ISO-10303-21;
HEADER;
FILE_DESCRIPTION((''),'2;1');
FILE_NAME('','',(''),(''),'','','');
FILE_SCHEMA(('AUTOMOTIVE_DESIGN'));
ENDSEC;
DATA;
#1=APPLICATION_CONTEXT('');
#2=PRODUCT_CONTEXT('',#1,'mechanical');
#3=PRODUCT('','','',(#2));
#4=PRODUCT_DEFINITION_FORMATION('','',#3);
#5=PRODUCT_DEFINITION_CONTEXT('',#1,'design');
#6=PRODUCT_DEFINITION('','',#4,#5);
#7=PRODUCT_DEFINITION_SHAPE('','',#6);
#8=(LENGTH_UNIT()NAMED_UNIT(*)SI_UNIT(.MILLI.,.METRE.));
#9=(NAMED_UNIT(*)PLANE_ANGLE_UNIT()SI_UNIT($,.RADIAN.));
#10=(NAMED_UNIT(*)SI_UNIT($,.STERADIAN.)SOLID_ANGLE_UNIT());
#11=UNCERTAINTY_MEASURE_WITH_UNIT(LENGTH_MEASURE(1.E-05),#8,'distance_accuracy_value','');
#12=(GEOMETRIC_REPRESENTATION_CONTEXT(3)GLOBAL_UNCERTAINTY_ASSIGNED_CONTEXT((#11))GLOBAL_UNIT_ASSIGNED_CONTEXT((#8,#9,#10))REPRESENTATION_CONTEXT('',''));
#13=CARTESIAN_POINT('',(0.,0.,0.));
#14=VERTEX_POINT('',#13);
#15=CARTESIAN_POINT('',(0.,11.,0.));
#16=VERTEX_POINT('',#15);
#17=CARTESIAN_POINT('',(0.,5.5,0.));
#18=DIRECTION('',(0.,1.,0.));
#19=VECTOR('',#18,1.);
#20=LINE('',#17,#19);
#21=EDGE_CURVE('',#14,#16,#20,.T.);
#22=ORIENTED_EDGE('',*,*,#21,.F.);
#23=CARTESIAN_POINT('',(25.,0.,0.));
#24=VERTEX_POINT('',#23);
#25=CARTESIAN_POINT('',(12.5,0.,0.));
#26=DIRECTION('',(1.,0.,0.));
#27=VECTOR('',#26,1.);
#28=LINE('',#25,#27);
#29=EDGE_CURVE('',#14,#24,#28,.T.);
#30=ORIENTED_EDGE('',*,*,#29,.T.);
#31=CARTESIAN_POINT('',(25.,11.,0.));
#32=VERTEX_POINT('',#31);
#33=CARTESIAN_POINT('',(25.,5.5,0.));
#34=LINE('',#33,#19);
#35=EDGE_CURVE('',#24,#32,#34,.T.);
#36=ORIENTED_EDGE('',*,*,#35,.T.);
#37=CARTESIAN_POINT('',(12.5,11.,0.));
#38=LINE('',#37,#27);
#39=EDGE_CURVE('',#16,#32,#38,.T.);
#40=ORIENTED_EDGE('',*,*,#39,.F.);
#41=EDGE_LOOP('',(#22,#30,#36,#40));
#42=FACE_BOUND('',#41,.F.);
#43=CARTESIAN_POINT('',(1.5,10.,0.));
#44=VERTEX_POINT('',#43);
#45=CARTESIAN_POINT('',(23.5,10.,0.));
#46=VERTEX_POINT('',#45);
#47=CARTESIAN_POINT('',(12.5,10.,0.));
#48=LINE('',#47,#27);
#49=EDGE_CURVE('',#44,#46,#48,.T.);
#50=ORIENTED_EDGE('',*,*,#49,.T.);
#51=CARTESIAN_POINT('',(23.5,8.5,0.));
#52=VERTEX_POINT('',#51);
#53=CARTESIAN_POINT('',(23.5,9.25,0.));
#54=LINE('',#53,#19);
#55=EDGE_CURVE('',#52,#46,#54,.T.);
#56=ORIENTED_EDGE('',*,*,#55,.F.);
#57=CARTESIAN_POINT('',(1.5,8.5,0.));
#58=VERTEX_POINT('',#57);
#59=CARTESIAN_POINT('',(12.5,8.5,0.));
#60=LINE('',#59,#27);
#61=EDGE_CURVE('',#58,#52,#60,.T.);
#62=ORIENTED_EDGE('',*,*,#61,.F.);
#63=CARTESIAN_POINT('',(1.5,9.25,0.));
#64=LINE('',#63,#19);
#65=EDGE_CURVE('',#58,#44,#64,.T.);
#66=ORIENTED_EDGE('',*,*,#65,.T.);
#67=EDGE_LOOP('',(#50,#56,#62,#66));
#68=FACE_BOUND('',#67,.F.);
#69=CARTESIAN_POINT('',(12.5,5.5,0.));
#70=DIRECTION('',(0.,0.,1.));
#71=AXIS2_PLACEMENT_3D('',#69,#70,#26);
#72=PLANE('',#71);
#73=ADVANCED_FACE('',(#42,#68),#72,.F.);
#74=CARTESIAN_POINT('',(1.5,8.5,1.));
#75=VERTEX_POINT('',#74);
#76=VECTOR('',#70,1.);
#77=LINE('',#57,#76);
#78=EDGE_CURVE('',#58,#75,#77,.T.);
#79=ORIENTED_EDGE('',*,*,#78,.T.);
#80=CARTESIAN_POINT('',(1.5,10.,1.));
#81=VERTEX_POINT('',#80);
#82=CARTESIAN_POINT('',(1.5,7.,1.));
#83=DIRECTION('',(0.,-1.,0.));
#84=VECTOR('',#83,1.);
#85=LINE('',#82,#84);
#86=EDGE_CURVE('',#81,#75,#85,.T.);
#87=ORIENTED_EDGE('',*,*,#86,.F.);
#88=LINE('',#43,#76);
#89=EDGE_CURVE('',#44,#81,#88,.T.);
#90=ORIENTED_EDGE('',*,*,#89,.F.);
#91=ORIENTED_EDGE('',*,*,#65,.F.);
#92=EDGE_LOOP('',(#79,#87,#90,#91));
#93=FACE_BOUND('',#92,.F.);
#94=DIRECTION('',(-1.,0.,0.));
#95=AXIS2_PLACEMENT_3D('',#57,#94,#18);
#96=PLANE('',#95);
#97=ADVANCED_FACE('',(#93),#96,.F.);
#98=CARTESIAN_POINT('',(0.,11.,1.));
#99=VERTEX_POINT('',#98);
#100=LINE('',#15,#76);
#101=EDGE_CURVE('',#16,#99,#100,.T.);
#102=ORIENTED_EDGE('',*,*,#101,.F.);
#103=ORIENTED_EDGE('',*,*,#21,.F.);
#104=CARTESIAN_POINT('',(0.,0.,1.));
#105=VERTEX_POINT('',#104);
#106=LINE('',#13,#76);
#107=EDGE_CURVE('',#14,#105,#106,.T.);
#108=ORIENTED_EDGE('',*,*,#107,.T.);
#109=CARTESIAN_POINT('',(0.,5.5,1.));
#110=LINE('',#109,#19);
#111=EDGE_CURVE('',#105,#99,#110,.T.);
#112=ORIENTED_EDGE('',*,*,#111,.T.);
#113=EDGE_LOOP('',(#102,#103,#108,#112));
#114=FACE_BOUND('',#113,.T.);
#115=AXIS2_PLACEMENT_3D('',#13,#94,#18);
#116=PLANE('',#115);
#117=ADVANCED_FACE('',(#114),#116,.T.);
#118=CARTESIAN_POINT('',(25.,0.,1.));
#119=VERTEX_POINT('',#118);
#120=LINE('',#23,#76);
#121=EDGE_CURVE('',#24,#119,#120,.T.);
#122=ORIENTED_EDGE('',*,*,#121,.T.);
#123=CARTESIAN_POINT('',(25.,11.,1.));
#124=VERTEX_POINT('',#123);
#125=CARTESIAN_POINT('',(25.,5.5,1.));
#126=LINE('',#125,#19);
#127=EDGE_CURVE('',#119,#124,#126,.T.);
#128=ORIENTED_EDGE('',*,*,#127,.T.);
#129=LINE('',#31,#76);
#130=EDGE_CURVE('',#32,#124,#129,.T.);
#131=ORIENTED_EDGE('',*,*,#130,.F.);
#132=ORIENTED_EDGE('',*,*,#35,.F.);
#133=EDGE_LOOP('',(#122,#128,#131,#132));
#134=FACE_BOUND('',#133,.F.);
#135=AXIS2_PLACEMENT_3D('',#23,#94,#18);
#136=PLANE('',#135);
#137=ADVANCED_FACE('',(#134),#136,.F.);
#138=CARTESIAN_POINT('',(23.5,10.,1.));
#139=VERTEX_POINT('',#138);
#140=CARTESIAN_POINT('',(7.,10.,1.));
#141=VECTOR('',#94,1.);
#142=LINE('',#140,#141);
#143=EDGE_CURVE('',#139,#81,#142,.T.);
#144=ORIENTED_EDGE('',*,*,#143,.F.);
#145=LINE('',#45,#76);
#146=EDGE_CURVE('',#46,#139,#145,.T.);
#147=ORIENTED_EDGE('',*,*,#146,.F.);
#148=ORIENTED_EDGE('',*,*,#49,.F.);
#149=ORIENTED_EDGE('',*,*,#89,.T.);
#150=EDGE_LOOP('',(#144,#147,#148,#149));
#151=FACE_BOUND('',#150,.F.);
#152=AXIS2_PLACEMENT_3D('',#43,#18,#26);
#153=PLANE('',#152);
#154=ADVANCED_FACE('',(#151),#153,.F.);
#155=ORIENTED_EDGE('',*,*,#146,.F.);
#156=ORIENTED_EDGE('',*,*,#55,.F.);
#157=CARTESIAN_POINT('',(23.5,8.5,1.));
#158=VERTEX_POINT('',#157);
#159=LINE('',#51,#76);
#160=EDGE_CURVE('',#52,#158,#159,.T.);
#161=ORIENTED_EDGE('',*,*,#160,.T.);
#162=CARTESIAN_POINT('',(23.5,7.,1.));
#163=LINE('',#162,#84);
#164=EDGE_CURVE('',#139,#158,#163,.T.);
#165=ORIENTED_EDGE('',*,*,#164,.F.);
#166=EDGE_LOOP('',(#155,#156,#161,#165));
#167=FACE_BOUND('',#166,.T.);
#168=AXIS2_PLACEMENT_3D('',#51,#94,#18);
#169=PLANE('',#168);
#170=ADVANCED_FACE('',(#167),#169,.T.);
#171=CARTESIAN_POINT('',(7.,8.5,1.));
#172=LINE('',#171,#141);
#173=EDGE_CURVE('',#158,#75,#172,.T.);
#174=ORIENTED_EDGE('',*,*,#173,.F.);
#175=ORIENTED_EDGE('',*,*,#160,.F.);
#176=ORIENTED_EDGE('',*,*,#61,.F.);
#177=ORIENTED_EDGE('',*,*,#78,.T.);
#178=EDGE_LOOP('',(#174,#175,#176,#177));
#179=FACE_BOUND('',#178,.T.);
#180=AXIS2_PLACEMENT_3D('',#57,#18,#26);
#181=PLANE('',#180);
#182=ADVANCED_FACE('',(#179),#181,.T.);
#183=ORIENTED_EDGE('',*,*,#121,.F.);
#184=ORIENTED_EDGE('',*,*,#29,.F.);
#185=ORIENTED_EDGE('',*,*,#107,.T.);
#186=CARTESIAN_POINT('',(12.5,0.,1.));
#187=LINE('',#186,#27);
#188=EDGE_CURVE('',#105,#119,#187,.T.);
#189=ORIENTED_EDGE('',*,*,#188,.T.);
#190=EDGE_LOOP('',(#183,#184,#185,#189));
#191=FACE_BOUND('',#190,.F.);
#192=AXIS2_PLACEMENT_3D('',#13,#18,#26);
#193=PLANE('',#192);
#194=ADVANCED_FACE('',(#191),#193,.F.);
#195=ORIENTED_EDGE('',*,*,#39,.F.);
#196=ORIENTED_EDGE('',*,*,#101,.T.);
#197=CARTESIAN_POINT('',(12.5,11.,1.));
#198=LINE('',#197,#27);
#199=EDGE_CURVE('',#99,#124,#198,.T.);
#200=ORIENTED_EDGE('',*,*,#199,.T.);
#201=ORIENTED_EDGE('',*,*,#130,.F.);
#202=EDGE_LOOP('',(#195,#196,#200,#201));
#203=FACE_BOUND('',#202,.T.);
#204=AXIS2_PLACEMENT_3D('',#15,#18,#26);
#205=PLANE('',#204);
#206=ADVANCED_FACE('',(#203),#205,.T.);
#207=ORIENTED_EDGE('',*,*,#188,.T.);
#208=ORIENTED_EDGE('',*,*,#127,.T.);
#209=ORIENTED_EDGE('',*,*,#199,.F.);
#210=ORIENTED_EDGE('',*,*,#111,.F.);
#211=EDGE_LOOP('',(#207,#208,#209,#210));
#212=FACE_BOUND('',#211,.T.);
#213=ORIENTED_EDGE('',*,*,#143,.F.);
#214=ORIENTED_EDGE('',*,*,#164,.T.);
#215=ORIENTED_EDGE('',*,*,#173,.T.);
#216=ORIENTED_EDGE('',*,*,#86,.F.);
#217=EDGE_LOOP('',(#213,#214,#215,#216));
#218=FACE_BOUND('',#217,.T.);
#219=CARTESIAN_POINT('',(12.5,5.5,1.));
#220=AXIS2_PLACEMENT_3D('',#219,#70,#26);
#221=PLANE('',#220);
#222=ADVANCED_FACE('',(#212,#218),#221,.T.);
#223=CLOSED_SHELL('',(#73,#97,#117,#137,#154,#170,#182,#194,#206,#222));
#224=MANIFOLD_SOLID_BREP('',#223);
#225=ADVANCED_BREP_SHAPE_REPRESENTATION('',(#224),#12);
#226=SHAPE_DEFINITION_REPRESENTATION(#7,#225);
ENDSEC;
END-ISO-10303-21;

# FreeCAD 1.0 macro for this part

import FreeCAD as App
import Part
import Sketcher

V = App.Vector
Q = App.Units.Quantity

doc = App.newDocument("Part")
body = doc.addObject("PartDesign::Body", "Body")

# Sketch on XY plane
sketch1 = doc.addObject("Sketcher::SketchObject", "Sketch")
body.addObject(sketch1)
sketch1.AttachmentSupport = (doc.XY_Plane, [""])
sketch1.MapMode = "FlatFace"
sketch1.addGeometry(Part.LineSegment(V(1.5, 10, 0), V(1.5, 8.5, 0)), False)
sketch1.addGeometry(Part.LineSegment(V(1.5, 8.5, 0), V(23.5, 8.5, 0)), False)
sketch1.addGeometry(Part.LineSegment(V(23.5, 8.5, 0), V(23.5, 10, 0)), False)
sketch1.addGeometry(Part.LineSegment(V(23.5, 10, 0), V(1.5, 10, 0)), False)
sketch1.addConstraint(Sketcher.Constraint("Coincident", 0, 2, 1, 1))
sketch1.addConstraint(Sketcher.Constraint("Coincident", 1, 2, 2, 1))
sketch1.addConstraint(Sketcher.Constraint("Coincident", 2, 2, 3, 1))
sketch1.addConstraint(Sketcher.Constraint("Coincident", 3, 2, 0, 1))
sketch1.addConstraint(Sketcher.Constraint("Vertical", 0))
sketch1.addConstraint(Sketcher.Constraint("Horizontal", 1))
sketch1.addConstraint(Sketcher.Constraint("Vertical", 2))
sketch1.addConstraint(Sketcher.Constraint("Horizontal", 3))
sketch1.addConstraint(Sketcher.Constraint("DistanceX", 1, 1, 1, 2, Q("22 mm")))
sketch1.addConstraint(Sketcher.Constraint("DistanceY", 0, 2, 0, 1, Q("1.5 mm")))
sketch1.addConstraint(Sketcher.Constraint("DistanceY", -1, 1, 2, 2, Q("10 mm")))
sketch1.addConstraint(Sketcher.Constraint("DistanceX", -1, 1, 0, 2, Q("1.5 mm")))
pad1 = doc.addObject("PartDesign::Pad", "Pad")
body.addObject(pad1)
pad1.Profile = sketch1
pad1.Length = 2
body2 = doc.addObject("PartDesign::Body", "Body001")

# Sketch on XY plane
sketch2 = doc.addObject("Sketcher::SketchObject", "Sketch001")
body2.addObject(sketch2)
sketch2.AttachmentSupport = (doc.getObject("XY_Plane001"), [""])
sketch2.MapMode = "FlatFace"
sketch2.addGeometry(Part.LineSegment(V(0, 11, 0), V(0, 0, 0)), False)
sketch2.addGeometry(Part.LineSegment(V(0, 0, 0), V(25, 0, 0)), False)
sketch2.addGeometry(Part.LineSegment(V(25, 0, 0), V(25, 11, 0)), False)
sketch2.addGeometry(Part.LineSegment(V(25, 11, 0), V(0, 11, 0)), False)
sketch2.addConstraint(Sketcher.Constraint("Coincident", 0, 2, 1, 1))
sketch2.addConstraint(Sketcher.Constraint("Coincident", 1, 2, 2, 1))
sketch2.addConstraint(Sketcher.Constraint("Coincident", 2, 2, 3, 1))
sketch2.addConstraint(Sketcher.Constraint("Coincident", 3, 2, 0, 1))
sketch2.addConstraint(Sketcher.Constraint("Vertical", 0))
sketch2.addConstraint(Sketcher.Constraint("Horizontal", 1))
sketch2.addConstraint(Sketcher.Constraint("Vertical", 2))
sketch2.addConstraint(Sketcher.Constraint("Horizontal", 3))
sketch2.addConstraint(Sketcher.Constraint("Coincident", 0, 2, -1, 1))
sketch2.addConstraint(Sketcher.Constraint("DistanceX", 1, 1, 1, 2, Q("25 mm")))
sketch2.addConstraint(Sketcher.Constraint("DistanceY", 0, 2, 0, 1, Q("11 mm")))
pad2 = doc.addObject("PartDesign::Pad", "Pad001")
body2.addObject(pad2)
pad2.Profile = sketch2
pad2.Length = 1
doc.recompute()

boolean = doc.addObject("PartDesign::Boolean", "Boolean")
body2.addObject(boolean)
boolean.Type = "Cut"
boolean.addObjects([body])

doc.recompute()
